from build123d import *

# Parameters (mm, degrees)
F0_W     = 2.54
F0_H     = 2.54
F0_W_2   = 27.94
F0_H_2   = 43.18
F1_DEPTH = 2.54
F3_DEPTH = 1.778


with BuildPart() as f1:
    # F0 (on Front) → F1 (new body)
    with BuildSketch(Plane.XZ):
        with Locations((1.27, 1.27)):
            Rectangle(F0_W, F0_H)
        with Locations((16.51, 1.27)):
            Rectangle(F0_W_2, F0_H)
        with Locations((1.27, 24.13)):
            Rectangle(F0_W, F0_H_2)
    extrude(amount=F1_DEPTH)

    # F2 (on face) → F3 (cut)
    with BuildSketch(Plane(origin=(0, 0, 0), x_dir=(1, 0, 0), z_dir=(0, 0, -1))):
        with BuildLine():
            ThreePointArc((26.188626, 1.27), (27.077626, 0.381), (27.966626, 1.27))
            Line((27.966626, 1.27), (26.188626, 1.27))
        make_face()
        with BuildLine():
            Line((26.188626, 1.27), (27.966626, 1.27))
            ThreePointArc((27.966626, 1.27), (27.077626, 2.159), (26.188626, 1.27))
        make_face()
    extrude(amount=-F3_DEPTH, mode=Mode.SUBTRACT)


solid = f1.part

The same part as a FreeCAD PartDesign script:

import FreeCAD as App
import Part
import Sketcher
Q = App.Units.Quantity

doc = App.newDocument("Part")
body = doc.addObject("PartDesign::Body", "Body")

# Sketch on XZ plane
sketch1 = body.newObject("Sketcher::SketchObject", "Sketch")
sketch1.AttachmentSupport = (doc.getObject("XZ_Plane"), [""])
sketch1.MapMode = "FlatFace"
sketch1.addGeometry(Part.LineSegment(App.Vector(0, 0, 0), App.Vector(30.5, 0, 0)), False)
sketch1.addGeometry(Part.LineSegment(App.Vector(30.5, 0, 0), App.Vector(30.5, 2.5, 0)), False)
sketch1.addGeometry(Part.LineSegment(App.Vector(30.5, 2.5, 0), App.Vector(2.5, 2.5, 0)), False)
sketch1.addGeometry(Part.LineSegment(App.Vector(2.5, 2.5, 0), App.Vector(2.5, 45.7, 0)), False)
sketch1.addGeometry(Part.LineSegment(App.Vector(2.5, 45.7, 0), App.Vector(0, 45.7, 0)), False)
sketch1.addGeometry(Part.LineSegment(App.Vector(0, 45.7, 0), App.Vector(0, 0, 0)), False)
sketch1.addConstraint(Sketcher.Constraint("Coincident", 0, 2, 1, 1))
sketch1.addConstraint(Sketcher.Constraint("Coincident", 1, 2, 2, 1))
sketch1.addConstraint(Sketcher.Constraint("Coincident", 2, 2, 3, 1))
sketch1.addConstraint(Sketcher.Constraint("Coincident", 3, 2, 4, 1))
sketch1.addConstraint(Sketcher.Constraint("Coincident", 4, 2, 5, 1))
sketch1.addConstraint(Sketcher.Constraint("Coincident", 5, 2, 0, 1))
sketch1.addConstraint(Sketcher.Constraint("Horizontal", 0))
sketch1.addConstraint(Sketcher.Constraint("Vertical", 1))
sketch1.addConstraint(Sketcher.Constraint("Horizontal", 2))
sketch1.addConstraint(Sketcher.Constraint("Vertical", 3))
sketch1.addConstraint(Sketcher.Constraint("Horizontal", 4))
sketch1.addConstraint(Sketcher.Constraint("Vertical", 5))
sketch1.addConstraint(Sketcher.Constraint("Coincident", 5, 2, -1, 1))
sketch1.addConstraint(Sketcher.Constraint("Equal", 4, 1))
sketch1.addConstraint(Sketcher.Constraint("DistanceX", 0, 1, 0, 2, Q("1.2 in")))
sketch1.addConstraint(Sketcher.Constraint("DistanceX", 2, 2, 2, 1, Q("1.1 in")))
sketch1.addConstraint(Sketcher.Constraint("DistanceY", 3, 1, 3, 2, Q("1.7 in")))
pad1 = body.newObject("PartDesign::Pad", "Pad")
pad1.Profile = sketch1
pad1.Length = Q("0.1 in")

# Sketch on XY plane
sketch2 = body.newObject("Sketcher::SketchObject", "Sketch001")
sketch2.AttachmentSupport = (doc.getObject("XY_Plane"), [""])
sketch2.MapMode = "FlatFace"
sketch2.addGeometry(Part.Circle(App.Vector(27.1, -1.3, 0), App.Vector(0, 0, 1), 0.9), False)
sketch2.addConstraint(Sketcher.Constraint("Diameter", 0, Q("0.07 in")))
sketch2.addConstraint(Sketcher.Constraint("DistanceY", 0, 3, -1, 1, Q("0.05 in")))
sketch2.addConstraint(Sketcher.Constraint("DistanceX", -1, 1, 0, 3, Q("27.077626 mm")))
pocket1 = body.newObject("PartDesign::Pocket", "Pocket")
pocket1.Profile = sketch2
pocket1.Length = Q("0.07 in")
pocket1.Reversed = True

doc.recompute()
